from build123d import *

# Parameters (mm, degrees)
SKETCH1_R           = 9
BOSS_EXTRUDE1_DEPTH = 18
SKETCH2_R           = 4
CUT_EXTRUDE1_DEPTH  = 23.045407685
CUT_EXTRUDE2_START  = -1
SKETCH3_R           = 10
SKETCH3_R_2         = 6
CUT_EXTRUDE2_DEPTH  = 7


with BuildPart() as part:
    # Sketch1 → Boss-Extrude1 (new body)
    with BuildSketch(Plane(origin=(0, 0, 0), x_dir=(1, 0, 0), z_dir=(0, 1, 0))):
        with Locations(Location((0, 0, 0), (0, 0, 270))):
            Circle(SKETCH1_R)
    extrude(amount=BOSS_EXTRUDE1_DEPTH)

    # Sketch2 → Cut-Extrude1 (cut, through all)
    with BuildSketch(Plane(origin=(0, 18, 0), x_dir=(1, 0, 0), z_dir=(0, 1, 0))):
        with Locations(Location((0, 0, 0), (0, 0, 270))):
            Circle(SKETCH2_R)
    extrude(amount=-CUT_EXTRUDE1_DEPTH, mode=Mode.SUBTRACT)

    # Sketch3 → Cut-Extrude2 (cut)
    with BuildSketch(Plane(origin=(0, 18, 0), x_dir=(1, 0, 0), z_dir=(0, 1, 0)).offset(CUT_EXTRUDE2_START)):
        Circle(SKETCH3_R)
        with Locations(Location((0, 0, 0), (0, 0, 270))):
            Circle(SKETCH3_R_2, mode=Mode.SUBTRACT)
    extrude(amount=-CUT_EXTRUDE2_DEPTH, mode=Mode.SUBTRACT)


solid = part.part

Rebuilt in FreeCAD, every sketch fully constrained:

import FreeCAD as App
import Part
import Sketcher
from FreeCAD import Vector

doc = App.newDocument("Part")
body = doc.addObject("PartDesign::Body", "Body")

# Sketch on XZ plane
sketch1 = doc.addObject("Sketcher::SketchObject", "Sketch")
body.addObject(sketch1)
sketch1.AttachmentSupport = (doc.XZ_Plane, [""])
sketch1.MapMode = "FlatFace"
sketch1.addGeometry(Part.Circle(Vector(0, 0, 0), Vector(0, 0, 1), 9), False)
sketch1.addConstraint([
    Sketcher.Constraint("Coincident", 0, 3, -1, 1),
    Sketcher.Constraint("Diameter", 0, 18.0),
])
pad1 = doc.addObject("PartDesign::Pad", "Pad")
body.addObject(pad1)
pad1.Profile = sketch1
pad1.Length = 18
pad1.Reversed = True

# Sketch on XZ plane
sketch2 = doc.addObject("Sketcher::SketchObject", "Sketch001")
body.addObject(sketch2)
sketch2.AttachmentSupport = (doc.XZ_Plane, [""])
sketch2.MapMode = "FlatFace"
sketch2.AttachmentOffset = App.Placement(Vector(0, 0, -18), App.Rotation())
sketch2.addGeometry(Part.Circle(Vector(0, 0, 0), Vector(0, 0, 1), 4), False)
sketch2.addConstraint([
    Sketcher.Constraint("Coincident", 0, 3, -1, 1),
    Sketcher.Constraint("Diameter", 0, 8.0),
])
pocket1 = doc.addObject("PartDesign::Pocket", "Pocket")
body.addObject(pocket1)
pocket1.Profile = sketch2
pocket1.Type = "ThroughAll"
pocket1.Reversed = True

# Sketch on XZ plane
sketch3 = doc.addObject("Sketcher::SketchObject", "Sketch002")
body.addObject(sketch3)
sketch3.AttachmentSupport = (doc.XZ_Plane, [""])
sketch3.MapMode = "FlatFace"
sketch3.AttachmentOffset = App.Placement(Vector(0, 0, -17), App.Rotation())
sketch3.addGeometry([
    Part.Circle(Vector(0, 0, 0), Vector(0, 0, 1), 10),
    Part.Circle(Vector(0, 0, 0), Vector(0, 0, 1), 6),
], False)
sketch3.addConstraint([
    Sketcher.Constraint("Coincident", 0, 3, -1, 1),
    Sketcher.Constraint("Coincident", 1, 3, -1, 1),
    Sketcher.Constraint("Diameter", 0, 20.0),
    Sketcher.Constraint("Diameter", 1, 12.0),
])
pocket2 = doc.addObject("PartDesign::Pocket", "Pocket001")
body.addObject(pocket2)
pocket2.Profile = sketch3
pocket2.Length = 7
pocket2.Reversed = True

doc.recompute()
